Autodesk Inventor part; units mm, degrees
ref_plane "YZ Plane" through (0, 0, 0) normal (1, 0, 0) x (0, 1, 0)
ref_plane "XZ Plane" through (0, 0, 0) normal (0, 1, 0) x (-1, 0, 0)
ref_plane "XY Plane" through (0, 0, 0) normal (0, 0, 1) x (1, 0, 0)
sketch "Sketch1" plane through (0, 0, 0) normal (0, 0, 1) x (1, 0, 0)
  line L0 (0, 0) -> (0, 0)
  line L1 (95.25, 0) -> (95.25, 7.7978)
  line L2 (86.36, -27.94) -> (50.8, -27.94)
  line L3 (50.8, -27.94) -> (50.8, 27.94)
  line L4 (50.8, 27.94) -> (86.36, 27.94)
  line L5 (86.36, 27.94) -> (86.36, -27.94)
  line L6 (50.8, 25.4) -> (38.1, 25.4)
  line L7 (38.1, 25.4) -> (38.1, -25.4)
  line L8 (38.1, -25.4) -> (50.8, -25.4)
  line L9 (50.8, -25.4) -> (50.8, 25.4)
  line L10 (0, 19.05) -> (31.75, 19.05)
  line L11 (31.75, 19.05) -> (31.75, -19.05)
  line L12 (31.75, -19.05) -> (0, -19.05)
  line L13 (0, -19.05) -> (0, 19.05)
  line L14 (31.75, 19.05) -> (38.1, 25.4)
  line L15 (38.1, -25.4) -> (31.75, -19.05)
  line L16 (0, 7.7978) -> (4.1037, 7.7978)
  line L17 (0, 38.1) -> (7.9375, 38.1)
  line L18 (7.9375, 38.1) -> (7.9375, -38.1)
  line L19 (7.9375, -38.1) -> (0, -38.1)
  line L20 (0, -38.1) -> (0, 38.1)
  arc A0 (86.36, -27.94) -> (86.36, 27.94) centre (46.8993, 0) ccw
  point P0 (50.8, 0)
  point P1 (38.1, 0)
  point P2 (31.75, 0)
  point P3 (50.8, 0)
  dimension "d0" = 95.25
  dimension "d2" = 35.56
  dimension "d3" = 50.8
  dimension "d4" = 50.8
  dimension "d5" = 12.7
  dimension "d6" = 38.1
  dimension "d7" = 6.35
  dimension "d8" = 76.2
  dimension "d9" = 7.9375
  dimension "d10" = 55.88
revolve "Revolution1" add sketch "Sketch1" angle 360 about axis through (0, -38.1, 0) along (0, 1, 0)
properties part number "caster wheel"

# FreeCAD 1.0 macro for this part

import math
import FreeCAD as App
import Part
import Sketcher
from FreeCAD import Vector
Q = App.Units.Quantity

doc = App.newDocument("Part")
params = doc.addObject("Spreadsheet::Sheet", "Params")
for row, (alias, value) in enumerate([
    ("sketch1_height", "3 in"),
    ("sketch1_width", "1.4 in"),
    ("sketch1_width2", "0.5 in"),
    ("sketch1_width3", "0.3125 in"),
    ("revolution_angle", "360 deg"),
], start=1):
    params.set(f"A{row}", alias)
    params.set(f"B{row}", "=" + value)
    params.setAlias(f"B{row}", alias)

body = doc.addObject("PartDesign::Body", "Body")

sketch1 = body.newObject("Sketcher::SketchObject", "Sketch")
sketch1.AttachmentSupport = (doc.getObject("XY_Plane"), [""])
sketch1.MapMode = "FlatFace"
sketch1.addGeometry([
    Part.LineSegment(Vector(50.8, -27.9, 0), Vector(86.4, -27.9, 0)),
    Part.ArcOfCircle(Part.Circle(Vector(46.9, 0, 0), Vector(0, 0, 1), 48.4), math.radians(-35), math.radians(35)),
    Part.LineSegment(Vector(86.4, 27.9, 0), Vector(50.8, 27.9, 0)),
    Part.LineSegment(Vector(50.8, 27.9, 0), Vector(50.8, 25.4, 0)),
    Part.LineSegment(Vector(50.8, 25.4, 0), Vector(38.1, 25.4, 0)),
    Part.LineSegment(Vector(38.1, 25.4, 0), Vector(31.8, 19.1, 0)),
    Part.LineSegment(Vector(31.8, 19.1, 0), Vector(7.9, 19.1, 0)),
    Part.LineSegment(Vector(7.9, 19.1, 0), Vector(7.9, 38.1, 0)),
    Part.LineSegment(Vector(7.9, 38.1, 0), Vector(0, 38.1, 0)),
    Part.LineSegment(Vector(0, 38.1, 0), Vector(0, -38.1, 0)),
    Part.LineSegment(Vector(0, -38.1, 0), Vector(7.9, -38.1, 0)),
    Part.LineSegment(Vector(7.9, -38.1, 0), Vector(7.9, -19.1, 0)),
    Part.LineSegment(Vector(7.9, -19.1, 0), Vector(31.8, -19.1, 0)),
    Part.LineSegment(Vector(31.8, -19.1, 0), Vector(38.1, -25.4, 0)),
    Part.LineSegment(Vector(38.1, -25.4, 0), Vector(50.8, -25.4, 0)),
    Part.LineSegment(Vector(50.8, -25.4, 0), Vector(50.8, -27.9, 0)),
], False)
sketch1.addConstraint([
    Sketcher.Constraint("Coincident", 0, 2, 1, 1),
    Sketcher.Constraint("Coincident", 1, 2, 2, 1),
    Sketcher.Constraint("Coincident", 2, 2, 3, 1),
    Sketcher.Constraint("Coincident", 3, 2, 4, 1),
    Sketcher.Constraint("Coincident", 4, 2, 5, 1),
    Sketcher.Constraint("Coincident", 5, 2, 6, 1),
    Sketcher.Constraint("Coincident", 6, 2, 7, 1),
    Sketcher.Constraint("Coincident", 7, 2, 8, 1),
    Sketcher.Constraint("Coincident", 8, 2, 9, 1),
    Sketcher.Constraint("Coincident", 9, 2, 10, 1),
    Sketcher.Constraint("Coincident", 10, 2, 11, 1),
    Sketcher.Constraint("Coincident", 11, 2, 12, 1),
    Sketcher.Constraint("Coincident", 12, 2, 13, 1),
    Sketcher.Constraint("Coincident", 13, 2, 14, 1),
    Sketcher.Constraint("Coincident", 14, 2, 15, 1),
    Sketcher.Constraint("Coincident", 15, 2, 0, 1),
    Sketcher.Constraint("Horizontal", 0),
    Sketcher.Constraint("Horizontal", 2),
    Sketcher.Constraint("Vertical", 3),
    Sketcher.Constraint("Horizontal", 4),
    Sketcher.Constraint("Horizontal", 6),
    Sketcher.Constraint("Vertical", 7),
    Sketcher.Constraint("Horizontal", 8),
    Sketcher.Constraint("Vertical", 9),
    Sketcher.Constraint("Horizontal", 10),
    Sketcher.Constraint("Vertical", 11),
    Sketcher.Constraint("Horizontal", 12),
    Sketcher.Constraint("Horizontal", 14),
    Sketcher.Constraint("Vertical", 15),
    Sketcher.Constraint("Symmetric", 8, 2, 9, 2, -1, 1),
    Sketcher.Constraint("Symmetric", 0, 2, 1, 2, -1),
    Sketcher.Constraint("Symmetric", 6, 2, 11, 2, -1),
    Sketcher.Constraint("Symmetric", 4, 2, 13, 2, -1),
    Sketcher.Constraint("Perpendicular", 5, 13),
    Sketcher.Constraint("Vertical", 5, 2, 12, 2),
    Sketcher.Constraint("Vertical", 3, 2, 14, 2),
    Sketcher.Constraint("DistanceY", 9, 2, 9, 1, Q("3 in")),
    Sketcher.Constraint("DistanceX", 0, 1, 0, 2, Q("1.4 in")),
    Sketcher.Constraint("DistanceX", 4, 2, 4, 1, Q("0.5 in")),
    Sketcher.Constraint("DistanceX", -1, 1, 2, 2, Q("2 in")),
    Sketcher.Constraint("DistanceY", 0, 2, 1, 2, Q("2.2 in")),
    Sketcher.Constraint("DistanceY", 4, 2, 7, 2, Q("0.5 in")),
    Sketcher.Constraint("DistanceY", 11, 2, 6, 2, Q("1.5 in")),
    Sketcher.Constraint("DistanceX", 8, 2, 8, 1, Q("0.3125 in")),
    Sketcher.Constraint("Radius", 1, Q("48.3507 mm")),
])
sketch1.setExpression("Constraints[36]", "Params.sketch1_height")
sketch1.setExpression("Constraints[37]", "Params.sketch1_width")
sketch1.setExpression("Constraints[38]", "Params.sketch1_width2")
sketch1.setExpression("Constraints[43]", "Params.sketch1_width3")
revolution = body.newObject("PartDesign::Revolution", "Revolution")
revolution.Profile = sketch1
revolution.ReferenceAxis = (sketch1, ["V_Axis"])
revolution.setExpression("Angle", "Params.revolution_angle")

doc.recompute()
